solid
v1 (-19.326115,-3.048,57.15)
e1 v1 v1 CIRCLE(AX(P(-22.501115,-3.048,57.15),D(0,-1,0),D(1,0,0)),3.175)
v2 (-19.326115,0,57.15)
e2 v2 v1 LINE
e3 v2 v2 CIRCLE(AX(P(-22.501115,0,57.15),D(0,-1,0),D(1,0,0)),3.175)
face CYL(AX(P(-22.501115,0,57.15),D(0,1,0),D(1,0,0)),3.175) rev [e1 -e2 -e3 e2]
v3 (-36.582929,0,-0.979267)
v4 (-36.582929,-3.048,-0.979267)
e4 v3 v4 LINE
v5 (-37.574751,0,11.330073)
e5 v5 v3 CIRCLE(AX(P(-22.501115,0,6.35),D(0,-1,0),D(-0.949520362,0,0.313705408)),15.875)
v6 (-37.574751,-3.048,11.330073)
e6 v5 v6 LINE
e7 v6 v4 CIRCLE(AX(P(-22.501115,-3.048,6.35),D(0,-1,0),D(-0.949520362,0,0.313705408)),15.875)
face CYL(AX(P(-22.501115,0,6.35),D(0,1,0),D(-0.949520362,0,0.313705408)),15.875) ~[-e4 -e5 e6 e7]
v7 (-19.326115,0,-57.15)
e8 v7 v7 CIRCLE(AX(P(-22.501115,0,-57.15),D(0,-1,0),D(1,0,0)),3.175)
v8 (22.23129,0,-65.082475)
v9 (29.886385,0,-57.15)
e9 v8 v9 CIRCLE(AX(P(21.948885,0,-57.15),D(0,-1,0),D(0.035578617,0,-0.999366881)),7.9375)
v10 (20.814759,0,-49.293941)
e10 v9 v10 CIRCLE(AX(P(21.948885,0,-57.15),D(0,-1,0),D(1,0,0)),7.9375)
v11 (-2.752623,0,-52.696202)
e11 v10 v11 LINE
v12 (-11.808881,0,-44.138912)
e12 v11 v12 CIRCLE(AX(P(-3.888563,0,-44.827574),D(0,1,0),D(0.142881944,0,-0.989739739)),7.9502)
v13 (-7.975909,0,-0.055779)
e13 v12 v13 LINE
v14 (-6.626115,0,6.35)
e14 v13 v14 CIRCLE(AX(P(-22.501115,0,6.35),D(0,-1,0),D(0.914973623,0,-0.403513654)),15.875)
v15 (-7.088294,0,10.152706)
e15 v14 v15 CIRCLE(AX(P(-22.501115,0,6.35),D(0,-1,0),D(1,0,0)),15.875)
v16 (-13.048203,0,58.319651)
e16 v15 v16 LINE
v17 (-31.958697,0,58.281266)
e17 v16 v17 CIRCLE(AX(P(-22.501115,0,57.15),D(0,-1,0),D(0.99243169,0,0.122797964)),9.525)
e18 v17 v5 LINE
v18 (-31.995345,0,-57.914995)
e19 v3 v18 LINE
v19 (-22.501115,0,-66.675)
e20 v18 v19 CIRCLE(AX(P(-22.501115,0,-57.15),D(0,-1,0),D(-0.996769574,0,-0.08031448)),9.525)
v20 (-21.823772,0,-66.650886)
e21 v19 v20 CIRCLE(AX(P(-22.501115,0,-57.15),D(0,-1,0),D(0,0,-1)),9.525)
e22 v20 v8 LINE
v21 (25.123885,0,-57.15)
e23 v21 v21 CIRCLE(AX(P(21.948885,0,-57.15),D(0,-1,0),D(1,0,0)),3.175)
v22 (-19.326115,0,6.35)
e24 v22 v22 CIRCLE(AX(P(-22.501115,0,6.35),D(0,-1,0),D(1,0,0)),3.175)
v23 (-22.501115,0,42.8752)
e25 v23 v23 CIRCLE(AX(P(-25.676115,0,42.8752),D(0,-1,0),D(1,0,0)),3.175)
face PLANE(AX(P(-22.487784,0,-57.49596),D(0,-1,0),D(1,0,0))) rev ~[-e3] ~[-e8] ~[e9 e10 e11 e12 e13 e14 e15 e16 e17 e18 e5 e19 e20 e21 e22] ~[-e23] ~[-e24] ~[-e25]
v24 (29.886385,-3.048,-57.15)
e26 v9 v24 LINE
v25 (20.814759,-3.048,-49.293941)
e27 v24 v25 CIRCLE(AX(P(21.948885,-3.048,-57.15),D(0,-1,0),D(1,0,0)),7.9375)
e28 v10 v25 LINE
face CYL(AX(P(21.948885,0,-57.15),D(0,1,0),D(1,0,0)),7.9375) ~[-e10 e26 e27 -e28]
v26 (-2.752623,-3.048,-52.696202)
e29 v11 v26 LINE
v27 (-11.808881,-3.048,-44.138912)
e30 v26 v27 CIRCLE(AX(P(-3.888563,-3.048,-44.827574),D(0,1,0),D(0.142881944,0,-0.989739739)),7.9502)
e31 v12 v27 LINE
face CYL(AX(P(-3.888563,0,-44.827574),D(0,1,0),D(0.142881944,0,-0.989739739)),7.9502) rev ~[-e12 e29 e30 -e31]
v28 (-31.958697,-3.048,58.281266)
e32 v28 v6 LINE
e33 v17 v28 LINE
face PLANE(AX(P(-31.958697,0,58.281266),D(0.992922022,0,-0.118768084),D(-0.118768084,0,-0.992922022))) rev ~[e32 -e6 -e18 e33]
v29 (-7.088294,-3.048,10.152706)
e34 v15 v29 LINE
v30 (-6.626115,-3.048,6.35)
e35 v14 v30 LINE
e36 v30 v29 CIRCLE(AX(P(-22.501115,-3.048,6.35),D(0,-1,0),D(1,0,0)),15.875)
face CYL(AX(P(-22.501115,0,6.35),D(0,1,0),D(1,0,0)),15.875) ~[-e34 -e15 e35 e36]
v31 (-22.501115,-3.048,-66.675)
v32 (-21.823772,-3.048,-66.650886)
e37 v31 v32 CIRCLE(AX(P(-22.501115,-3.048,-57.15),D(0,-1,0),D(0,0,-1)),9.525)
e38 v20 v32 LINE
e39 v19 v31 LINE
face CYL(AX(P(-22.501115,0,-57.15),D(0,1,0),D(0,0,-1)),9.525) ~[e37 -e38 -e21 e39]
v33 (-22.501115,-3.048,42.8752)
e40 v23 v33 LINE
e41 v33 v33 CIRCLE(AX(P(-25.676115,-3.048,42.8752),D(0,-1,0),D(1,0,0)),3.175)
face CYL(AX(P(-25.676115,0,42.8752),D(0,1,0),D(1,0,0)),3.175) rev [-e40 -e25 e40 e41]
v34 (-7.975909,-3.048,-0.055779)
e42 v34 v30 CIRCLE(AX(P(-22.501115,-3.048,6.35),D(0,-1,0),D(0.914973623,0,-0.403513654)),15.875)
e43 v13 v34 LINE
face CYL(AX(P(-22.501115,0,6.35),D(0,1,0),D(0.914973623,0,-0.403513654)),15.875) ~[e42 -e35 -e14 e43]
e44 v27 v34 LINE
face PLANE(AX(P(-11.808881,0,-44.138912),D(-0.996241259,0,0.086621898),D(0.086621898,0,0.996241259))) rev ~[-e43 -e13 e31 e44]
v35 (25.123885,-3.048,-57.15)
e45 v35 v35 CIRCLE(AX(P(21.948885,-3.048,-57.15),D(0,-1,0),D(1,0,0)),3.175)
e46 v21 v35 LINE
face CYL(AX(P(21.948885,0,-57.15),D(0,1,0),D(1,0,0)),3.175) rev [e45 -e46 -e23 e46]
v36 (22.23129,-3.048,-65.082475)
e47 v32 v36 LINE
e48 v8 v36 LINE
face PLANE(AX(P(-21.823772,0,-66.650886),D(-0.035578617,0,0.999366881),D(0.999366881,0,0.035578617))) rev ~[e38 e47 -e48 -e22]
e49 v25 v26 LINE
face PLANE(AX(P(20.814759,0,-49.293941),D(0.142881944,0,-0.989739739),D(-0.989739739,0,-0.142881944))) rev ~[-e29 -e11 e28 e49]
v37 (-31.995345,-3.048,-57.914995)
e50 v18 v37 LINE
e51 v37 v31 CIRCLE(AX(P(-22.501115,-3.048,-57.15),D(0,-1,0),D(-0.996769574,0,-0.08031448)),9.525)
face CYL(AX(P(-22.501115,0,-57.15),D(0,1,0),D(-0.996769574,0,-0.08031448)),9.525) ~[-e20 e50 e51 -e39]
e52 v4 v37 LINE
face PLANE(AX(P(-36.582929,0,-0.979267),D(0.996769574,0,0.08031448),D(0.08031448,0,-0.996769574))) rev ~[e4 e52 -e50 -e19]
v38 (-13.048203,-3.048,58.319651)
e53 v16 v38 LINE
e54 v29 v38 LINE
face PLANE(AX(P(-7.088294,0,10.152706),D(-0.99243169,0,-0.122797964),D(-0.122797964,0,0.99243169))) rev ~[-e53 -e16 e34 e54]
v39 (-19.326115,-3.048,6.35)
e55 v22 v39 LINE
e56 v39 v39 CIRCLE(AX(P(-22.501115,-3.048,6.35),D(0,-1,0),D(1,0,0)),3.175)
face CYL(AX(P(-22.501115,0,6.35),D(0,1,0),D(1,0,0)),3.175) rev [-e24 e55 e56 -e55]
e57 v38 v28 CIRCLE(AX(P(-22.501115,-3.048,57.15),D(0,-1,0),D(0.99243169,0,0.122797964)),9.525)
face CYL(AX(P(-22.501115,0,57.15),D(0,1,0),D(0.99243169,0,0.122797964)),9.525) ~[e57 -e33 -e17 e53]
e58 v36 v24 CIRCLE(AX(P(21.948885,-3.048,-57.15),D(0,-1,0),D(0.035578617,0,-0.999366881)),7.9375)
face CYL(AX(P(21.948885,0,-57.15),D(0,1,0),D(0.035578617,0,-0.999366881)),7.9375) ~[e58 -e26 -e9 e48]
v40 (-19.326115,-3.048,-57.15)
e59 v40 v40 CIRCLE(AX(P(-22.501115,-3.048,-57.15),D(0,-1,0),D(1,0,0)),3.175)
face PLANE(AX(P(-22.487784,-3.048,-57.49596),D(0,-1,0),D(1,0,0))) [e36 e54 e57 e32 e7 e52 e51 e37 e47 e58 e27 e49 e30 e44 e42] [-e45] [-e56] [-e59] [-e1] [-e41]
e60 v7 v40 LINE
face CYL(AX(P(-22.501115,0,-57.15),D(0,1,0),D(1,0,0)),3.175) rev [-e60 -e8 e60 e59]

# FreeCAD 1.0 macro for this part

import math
import FreeCAD as App
import Part
import Sketcher
from FreeCAD import Vector
Q = App.Units.Quantity

doc = App.newDocument("Part")
params = doc.addObject("Spreadsheet::Sheet", "Params")
for row, (alias, value) in enumerate([
    ("sketch1_diameter", "0.25 in"),
    ("sketch1_diameter2", "0.25 in"),
    ("sketch1_diameter3", "0.25 in"),
    ("sketch1_diameter4", "0.25 in"),
    ("sketch1_diameter5", "0.25 in"),
    ("pad1_length", "0.12 in"),
], start=1):
    params.set(f"A{row}", alias)
    params.set(f"B{row}", "=" + value)
    params.setAlias(f"B{row}", alias)

body = doc.addObject("PartDesign::Body", "Body")

# Sketch on XZ plane
sketch1 = body.newObject("Sketcher::SketchObject", "Sketch")
sketch1.AttachmentSupport = (doc.getObject("XZ_Plane"), [""])
sketch1.MapMode = "FlatFace"
sketch1.addGeometry([
    Part.LineSegment(Vector(-21.823772, -66.650886, 0), Vector(22.23129, -65.082475, 0)),  # 0
    Part.ArcOfCircle(Part.Circle(Vector(21.948885, -57.15, 0), Vector(0, 0, 1), 7.9375), math.radians(-87.961065), math.radians(0)),  # 1
    Part.ArcOfCircle(Part.Circle(Vector(21.948885, -57.15, 0), Vector(0, 0, 1), 7.9375), math.radians(0), math.radians(98.214646)),  # 2
    Part.LineSegment(Vector(20.814759, -49.293941, 0), Vector(-2.752623, -52.696202, 0)),  # 3
    Part.ArcOfCircle(Part.Circle(Vector(-3.888563, -44.827574, 0), Vector(0, 0, 1), 7.9502), math.radians(175.030703), math.radians(278.214646)),  # 4
    Part.LineSegment(Vector(-11.808881, -44.138912, 0), Vector(-7.975909, -0.055779, 0)),  # 5
    Part.ArcOfCircle(Part.Circle(Vector(-22.501115, 6.35, 0), Vector(0, 0, 1), 15.875), math.radians(-23.798019), math.radians(0)),  # 6
    Part.ArcOfCircle(Part.Circle(Vector(-22.501115, 6.35, 0), Vector(0, 0, 1), 15.875), math.radians(0), math.radians(13.859425)),  # 7
    Part.LineSegment(Vector(-7.088294, 10.152706, 0), Vector(-13.048203, 58.319651, 0)),  # 8
    Part.ArcOfCircle(Part.Circle(Vector(-22.501115, 57.15, 0), Vector(0, 0, 1), 9.525), math.radians(7.053609), math.radians(173.178989)),  # 9
    Part.LineSegment(Vector(-31.958697, 58.281266, 0), Vector(-37.574751, 11.330073, 0)),  # 10
    Part.ArcOfCircle(Part.Circle(Vector(-22.501115, 6.35, 0), Vector(0, 0, 1), 15.875), math.radians(161.717322), math.radians(207.495963)),  # 11
    Part.LineSegment(Vector(-36.582929, -0.979267, 0), Vector(-31.995345, -57.914995, 0)),  # 12
    Part.ArcOfCircle(Part.Circle(Vector(-22.501115, -57.15, 0), Vector(0, 0, 1), 9.525), math.radians(-175.393358), math.radians(-90)),  # 13
    Part.ArcOfCircle(Part.Circle(Vector(-22.501115, -57.15, 0), Vector(0, 0, 1), 9.525), math.radians(-90), math.radians(-85.92213)),  # 14
    Part.Circle(Vector(-22.501115, -57.15, 0), Vector(0, 0, 1), 3.175),  # 15
    Part.Circle(Vector(21.948885, -57.15, 0), Vector(0, 0, 1), 3.175),  # 16
    Part.Circle(Vector(-22.501115, 6.35, 0), Vector(0, 0, 1), 3.175),  # 17
    Part.Circle(Vector(-25.676115, 42.8752, 0), Vector(0, 0, 1), 3.175),  # 18
    Part.Circle(Vector(-22.501115, 57.15, 0), Vector(0, 0, 1), 3.175),  # 19
], False)
sketch1.addConstraint([
    Sketcher.Constraint("Coincident", 0, 2, 1, 1),
    Sketcher.Constraint("Coincident", 1, 2, 2, 1),
    Sketcher.Constraint("Coincident", 2, 2, 3, 1),
    Sketcher.Constraint("Coincident", 3, 2, 4, 2),
    Sketcher.Constraint("Coincident", 4, 1, 5, 1),
    Sketcher.Constraint("Coincident", 5, 2, 6, 1),
    Sketcher.Constraint("Coincident", 6, 2, 7, 1),
    Sketcher.Constraint("Coincident", 7, 2, 8, 1),
    Sketcher.Constraint("Coincident", 8, 2, 9, 1),
    Sketcher.Constraint("Coincident", 9, 2, 10, 1),
    Sketcher.Constraint("Coincident", 10, 2, 11, 1),
    Sketcher.Constraint("Coincident", 11, 2, 12, 1),
    Sketcher.Constraint("Coincident", 12, 2, 13, 1),
    Sketcher.Constraint("Coincident", 13, 2, 14, 1),
    Sketcher.Constraint("Coincident", 14, 2, 0, 1),
    Sketcher.Constraint("Coincident", 2, 3, 1, 3),
    Sketcher.Constraint("Coincident", 7, 3, 6, 3),
    Sketcher.Constraint("Coincident", 11, 3, 6, 3),
    Sketcher.Constraint("Coincident", 14, 3, 13, 3),
    Sketcher.Constraint("Coincident", 15, 3, 13, 3),
    Sketcher.Constraint("Coincident", 16, 3, 1, 3),
    Sketcher.Constraint("Coincident", 17, 3, 6, 3),
    Sketcher.Constraint("Coincident", 19, 3, 9, 3),
    Sketcher.Constraint("Diameter", 15, Q("0.25 in")),
    Sketcher.Constraint("Diameter", 16, Q("0.25 in")),
    Sketcher.Constraint("Diameter", 17, Q("0.25 in")),
    Sketcher.Constraint("Diameter", 18, Q("0.25 in")),
    Sketcher.Constraint("Diameter", 19, Q("0.25 in")),
    Sketcher.Constraint("Radius", 1, Q("0.3125 in")),
    Sketcher.Constraint("Radius", 4, Q("0.313 in")),
    Sketcher.Constraint("Radius", 6, Q("0.625 in")),
    Sketcher.Constraint("Radius", 9, Q("0.375 in")),
    Sketcher.Constraint("Radius", 11, Q("0.625 in")),
    Sketcher.Constraint("Radius", 13, Q("0.375 in")),
    Sketcher.Constraint("DistanceY", 6, 3, 9, 3, Q("2 in")),
    Sketcher.Constraint("DistanceY", 1, 3, 6, 3, Q("2.5 in")),
    Sketcher.Constraint("DistanceY", 13, 3, 11, 3, Q("2.5 in")),
    Sketcher.Constraint("DistanceY", 1, 3, -1, 1, Q("2.25 in")),
    Sketcher.Constraint("DistanceY", 1, 2, -1, 1, Q("2.25 in")),
    Sketcher.Constraint("DistanceY", -1, 1, 6, 2, Q("0.25 in")),
    Sketcher.Constraint("DistanceX", 6, 3, 1, 3, Q("1.75 in")),
    Sketcher.Constraint("DistanceX", 9, 3, 1, 3, Q("1.75 in")),
    Sketcher.Constraint("DistanceX", 13, 3, 1, 3, Q("1.75 in")),
    Sketcher.Constraint("DistanceY", -1, 1, 18, 3, Q("1.688 in")),
    Sketcher.Constraint("DistanceX", 18, 3, 9, 3, Q("0.125 in")),
    Sketcher.Constraint("DistanceY", 0, 2, 4, 3, 20.254901),
    Sketcher.Constraint("Distance", 0, 44.082972),
    Sketcher.Constraint("Distance", 10, 47.285881),
    Sketcher.Constraint("Distance", 12, 57.120251),
    Sketcher.Constraint("DistanceX", -1, 1, 0, 2, 22.23129),
    Sketcher.Constraint("DistanceX", -1, 1, 2, 2, 20.814759),
    Sketcher.Constraint("DistanceY", 2, 2, -1, 1, 49.293941),
    Sketcher.Constraint("DistanceX", 4, 1, -1, 1, 11.808881),
    Sketcher.Constraint("DistanceX", 5, 2, -1, 1, 7.975909),
    Sketcher.Constraint("DistanceY", -1, 1, 8, 2, 58.319651),
    Sketcher.Constraint("DistanceX", 10, 2, -1, 1, 37.574751),
    Sketcher.Constraint("DistanceX", 11, 2, -1, 1, 36.582929),
    Sketcher.Constraint("DistanceX", 4, 3, 1, 3, 25.837448),
    Sketcher.Constraint("DistanceX", 4, 3, 3, 2, 1.13594),
    Sketcher.Constraint("DistanceX", 7, 2, 6, 2, 0.462179),
    Sketcher.Constraint("DistanceX", 12, 2, 13, 2, 9.49423),
])
sketch1.setExpression("Constraints[23]", "Params.sketch1_diameter")
sketch1.setExpression("Constraints[24]", "Params.sketch1_diameter2")
sketch1.setExpression("Constraints[25]", "Params.sketch1_diameter3")
sketch1.setExpression("Constraints[26]", "Params.sketch1_diameter4")
sketch1.setExpression("Constraints[27]", "Params.sketch1_diameter5")
pad1 = body.newObject("PartDesign::Pad", "Pad")
pad1.Profile = sketch1
pad1.setExpression("Length", "Params.pad1_length")

doc.recompute()
